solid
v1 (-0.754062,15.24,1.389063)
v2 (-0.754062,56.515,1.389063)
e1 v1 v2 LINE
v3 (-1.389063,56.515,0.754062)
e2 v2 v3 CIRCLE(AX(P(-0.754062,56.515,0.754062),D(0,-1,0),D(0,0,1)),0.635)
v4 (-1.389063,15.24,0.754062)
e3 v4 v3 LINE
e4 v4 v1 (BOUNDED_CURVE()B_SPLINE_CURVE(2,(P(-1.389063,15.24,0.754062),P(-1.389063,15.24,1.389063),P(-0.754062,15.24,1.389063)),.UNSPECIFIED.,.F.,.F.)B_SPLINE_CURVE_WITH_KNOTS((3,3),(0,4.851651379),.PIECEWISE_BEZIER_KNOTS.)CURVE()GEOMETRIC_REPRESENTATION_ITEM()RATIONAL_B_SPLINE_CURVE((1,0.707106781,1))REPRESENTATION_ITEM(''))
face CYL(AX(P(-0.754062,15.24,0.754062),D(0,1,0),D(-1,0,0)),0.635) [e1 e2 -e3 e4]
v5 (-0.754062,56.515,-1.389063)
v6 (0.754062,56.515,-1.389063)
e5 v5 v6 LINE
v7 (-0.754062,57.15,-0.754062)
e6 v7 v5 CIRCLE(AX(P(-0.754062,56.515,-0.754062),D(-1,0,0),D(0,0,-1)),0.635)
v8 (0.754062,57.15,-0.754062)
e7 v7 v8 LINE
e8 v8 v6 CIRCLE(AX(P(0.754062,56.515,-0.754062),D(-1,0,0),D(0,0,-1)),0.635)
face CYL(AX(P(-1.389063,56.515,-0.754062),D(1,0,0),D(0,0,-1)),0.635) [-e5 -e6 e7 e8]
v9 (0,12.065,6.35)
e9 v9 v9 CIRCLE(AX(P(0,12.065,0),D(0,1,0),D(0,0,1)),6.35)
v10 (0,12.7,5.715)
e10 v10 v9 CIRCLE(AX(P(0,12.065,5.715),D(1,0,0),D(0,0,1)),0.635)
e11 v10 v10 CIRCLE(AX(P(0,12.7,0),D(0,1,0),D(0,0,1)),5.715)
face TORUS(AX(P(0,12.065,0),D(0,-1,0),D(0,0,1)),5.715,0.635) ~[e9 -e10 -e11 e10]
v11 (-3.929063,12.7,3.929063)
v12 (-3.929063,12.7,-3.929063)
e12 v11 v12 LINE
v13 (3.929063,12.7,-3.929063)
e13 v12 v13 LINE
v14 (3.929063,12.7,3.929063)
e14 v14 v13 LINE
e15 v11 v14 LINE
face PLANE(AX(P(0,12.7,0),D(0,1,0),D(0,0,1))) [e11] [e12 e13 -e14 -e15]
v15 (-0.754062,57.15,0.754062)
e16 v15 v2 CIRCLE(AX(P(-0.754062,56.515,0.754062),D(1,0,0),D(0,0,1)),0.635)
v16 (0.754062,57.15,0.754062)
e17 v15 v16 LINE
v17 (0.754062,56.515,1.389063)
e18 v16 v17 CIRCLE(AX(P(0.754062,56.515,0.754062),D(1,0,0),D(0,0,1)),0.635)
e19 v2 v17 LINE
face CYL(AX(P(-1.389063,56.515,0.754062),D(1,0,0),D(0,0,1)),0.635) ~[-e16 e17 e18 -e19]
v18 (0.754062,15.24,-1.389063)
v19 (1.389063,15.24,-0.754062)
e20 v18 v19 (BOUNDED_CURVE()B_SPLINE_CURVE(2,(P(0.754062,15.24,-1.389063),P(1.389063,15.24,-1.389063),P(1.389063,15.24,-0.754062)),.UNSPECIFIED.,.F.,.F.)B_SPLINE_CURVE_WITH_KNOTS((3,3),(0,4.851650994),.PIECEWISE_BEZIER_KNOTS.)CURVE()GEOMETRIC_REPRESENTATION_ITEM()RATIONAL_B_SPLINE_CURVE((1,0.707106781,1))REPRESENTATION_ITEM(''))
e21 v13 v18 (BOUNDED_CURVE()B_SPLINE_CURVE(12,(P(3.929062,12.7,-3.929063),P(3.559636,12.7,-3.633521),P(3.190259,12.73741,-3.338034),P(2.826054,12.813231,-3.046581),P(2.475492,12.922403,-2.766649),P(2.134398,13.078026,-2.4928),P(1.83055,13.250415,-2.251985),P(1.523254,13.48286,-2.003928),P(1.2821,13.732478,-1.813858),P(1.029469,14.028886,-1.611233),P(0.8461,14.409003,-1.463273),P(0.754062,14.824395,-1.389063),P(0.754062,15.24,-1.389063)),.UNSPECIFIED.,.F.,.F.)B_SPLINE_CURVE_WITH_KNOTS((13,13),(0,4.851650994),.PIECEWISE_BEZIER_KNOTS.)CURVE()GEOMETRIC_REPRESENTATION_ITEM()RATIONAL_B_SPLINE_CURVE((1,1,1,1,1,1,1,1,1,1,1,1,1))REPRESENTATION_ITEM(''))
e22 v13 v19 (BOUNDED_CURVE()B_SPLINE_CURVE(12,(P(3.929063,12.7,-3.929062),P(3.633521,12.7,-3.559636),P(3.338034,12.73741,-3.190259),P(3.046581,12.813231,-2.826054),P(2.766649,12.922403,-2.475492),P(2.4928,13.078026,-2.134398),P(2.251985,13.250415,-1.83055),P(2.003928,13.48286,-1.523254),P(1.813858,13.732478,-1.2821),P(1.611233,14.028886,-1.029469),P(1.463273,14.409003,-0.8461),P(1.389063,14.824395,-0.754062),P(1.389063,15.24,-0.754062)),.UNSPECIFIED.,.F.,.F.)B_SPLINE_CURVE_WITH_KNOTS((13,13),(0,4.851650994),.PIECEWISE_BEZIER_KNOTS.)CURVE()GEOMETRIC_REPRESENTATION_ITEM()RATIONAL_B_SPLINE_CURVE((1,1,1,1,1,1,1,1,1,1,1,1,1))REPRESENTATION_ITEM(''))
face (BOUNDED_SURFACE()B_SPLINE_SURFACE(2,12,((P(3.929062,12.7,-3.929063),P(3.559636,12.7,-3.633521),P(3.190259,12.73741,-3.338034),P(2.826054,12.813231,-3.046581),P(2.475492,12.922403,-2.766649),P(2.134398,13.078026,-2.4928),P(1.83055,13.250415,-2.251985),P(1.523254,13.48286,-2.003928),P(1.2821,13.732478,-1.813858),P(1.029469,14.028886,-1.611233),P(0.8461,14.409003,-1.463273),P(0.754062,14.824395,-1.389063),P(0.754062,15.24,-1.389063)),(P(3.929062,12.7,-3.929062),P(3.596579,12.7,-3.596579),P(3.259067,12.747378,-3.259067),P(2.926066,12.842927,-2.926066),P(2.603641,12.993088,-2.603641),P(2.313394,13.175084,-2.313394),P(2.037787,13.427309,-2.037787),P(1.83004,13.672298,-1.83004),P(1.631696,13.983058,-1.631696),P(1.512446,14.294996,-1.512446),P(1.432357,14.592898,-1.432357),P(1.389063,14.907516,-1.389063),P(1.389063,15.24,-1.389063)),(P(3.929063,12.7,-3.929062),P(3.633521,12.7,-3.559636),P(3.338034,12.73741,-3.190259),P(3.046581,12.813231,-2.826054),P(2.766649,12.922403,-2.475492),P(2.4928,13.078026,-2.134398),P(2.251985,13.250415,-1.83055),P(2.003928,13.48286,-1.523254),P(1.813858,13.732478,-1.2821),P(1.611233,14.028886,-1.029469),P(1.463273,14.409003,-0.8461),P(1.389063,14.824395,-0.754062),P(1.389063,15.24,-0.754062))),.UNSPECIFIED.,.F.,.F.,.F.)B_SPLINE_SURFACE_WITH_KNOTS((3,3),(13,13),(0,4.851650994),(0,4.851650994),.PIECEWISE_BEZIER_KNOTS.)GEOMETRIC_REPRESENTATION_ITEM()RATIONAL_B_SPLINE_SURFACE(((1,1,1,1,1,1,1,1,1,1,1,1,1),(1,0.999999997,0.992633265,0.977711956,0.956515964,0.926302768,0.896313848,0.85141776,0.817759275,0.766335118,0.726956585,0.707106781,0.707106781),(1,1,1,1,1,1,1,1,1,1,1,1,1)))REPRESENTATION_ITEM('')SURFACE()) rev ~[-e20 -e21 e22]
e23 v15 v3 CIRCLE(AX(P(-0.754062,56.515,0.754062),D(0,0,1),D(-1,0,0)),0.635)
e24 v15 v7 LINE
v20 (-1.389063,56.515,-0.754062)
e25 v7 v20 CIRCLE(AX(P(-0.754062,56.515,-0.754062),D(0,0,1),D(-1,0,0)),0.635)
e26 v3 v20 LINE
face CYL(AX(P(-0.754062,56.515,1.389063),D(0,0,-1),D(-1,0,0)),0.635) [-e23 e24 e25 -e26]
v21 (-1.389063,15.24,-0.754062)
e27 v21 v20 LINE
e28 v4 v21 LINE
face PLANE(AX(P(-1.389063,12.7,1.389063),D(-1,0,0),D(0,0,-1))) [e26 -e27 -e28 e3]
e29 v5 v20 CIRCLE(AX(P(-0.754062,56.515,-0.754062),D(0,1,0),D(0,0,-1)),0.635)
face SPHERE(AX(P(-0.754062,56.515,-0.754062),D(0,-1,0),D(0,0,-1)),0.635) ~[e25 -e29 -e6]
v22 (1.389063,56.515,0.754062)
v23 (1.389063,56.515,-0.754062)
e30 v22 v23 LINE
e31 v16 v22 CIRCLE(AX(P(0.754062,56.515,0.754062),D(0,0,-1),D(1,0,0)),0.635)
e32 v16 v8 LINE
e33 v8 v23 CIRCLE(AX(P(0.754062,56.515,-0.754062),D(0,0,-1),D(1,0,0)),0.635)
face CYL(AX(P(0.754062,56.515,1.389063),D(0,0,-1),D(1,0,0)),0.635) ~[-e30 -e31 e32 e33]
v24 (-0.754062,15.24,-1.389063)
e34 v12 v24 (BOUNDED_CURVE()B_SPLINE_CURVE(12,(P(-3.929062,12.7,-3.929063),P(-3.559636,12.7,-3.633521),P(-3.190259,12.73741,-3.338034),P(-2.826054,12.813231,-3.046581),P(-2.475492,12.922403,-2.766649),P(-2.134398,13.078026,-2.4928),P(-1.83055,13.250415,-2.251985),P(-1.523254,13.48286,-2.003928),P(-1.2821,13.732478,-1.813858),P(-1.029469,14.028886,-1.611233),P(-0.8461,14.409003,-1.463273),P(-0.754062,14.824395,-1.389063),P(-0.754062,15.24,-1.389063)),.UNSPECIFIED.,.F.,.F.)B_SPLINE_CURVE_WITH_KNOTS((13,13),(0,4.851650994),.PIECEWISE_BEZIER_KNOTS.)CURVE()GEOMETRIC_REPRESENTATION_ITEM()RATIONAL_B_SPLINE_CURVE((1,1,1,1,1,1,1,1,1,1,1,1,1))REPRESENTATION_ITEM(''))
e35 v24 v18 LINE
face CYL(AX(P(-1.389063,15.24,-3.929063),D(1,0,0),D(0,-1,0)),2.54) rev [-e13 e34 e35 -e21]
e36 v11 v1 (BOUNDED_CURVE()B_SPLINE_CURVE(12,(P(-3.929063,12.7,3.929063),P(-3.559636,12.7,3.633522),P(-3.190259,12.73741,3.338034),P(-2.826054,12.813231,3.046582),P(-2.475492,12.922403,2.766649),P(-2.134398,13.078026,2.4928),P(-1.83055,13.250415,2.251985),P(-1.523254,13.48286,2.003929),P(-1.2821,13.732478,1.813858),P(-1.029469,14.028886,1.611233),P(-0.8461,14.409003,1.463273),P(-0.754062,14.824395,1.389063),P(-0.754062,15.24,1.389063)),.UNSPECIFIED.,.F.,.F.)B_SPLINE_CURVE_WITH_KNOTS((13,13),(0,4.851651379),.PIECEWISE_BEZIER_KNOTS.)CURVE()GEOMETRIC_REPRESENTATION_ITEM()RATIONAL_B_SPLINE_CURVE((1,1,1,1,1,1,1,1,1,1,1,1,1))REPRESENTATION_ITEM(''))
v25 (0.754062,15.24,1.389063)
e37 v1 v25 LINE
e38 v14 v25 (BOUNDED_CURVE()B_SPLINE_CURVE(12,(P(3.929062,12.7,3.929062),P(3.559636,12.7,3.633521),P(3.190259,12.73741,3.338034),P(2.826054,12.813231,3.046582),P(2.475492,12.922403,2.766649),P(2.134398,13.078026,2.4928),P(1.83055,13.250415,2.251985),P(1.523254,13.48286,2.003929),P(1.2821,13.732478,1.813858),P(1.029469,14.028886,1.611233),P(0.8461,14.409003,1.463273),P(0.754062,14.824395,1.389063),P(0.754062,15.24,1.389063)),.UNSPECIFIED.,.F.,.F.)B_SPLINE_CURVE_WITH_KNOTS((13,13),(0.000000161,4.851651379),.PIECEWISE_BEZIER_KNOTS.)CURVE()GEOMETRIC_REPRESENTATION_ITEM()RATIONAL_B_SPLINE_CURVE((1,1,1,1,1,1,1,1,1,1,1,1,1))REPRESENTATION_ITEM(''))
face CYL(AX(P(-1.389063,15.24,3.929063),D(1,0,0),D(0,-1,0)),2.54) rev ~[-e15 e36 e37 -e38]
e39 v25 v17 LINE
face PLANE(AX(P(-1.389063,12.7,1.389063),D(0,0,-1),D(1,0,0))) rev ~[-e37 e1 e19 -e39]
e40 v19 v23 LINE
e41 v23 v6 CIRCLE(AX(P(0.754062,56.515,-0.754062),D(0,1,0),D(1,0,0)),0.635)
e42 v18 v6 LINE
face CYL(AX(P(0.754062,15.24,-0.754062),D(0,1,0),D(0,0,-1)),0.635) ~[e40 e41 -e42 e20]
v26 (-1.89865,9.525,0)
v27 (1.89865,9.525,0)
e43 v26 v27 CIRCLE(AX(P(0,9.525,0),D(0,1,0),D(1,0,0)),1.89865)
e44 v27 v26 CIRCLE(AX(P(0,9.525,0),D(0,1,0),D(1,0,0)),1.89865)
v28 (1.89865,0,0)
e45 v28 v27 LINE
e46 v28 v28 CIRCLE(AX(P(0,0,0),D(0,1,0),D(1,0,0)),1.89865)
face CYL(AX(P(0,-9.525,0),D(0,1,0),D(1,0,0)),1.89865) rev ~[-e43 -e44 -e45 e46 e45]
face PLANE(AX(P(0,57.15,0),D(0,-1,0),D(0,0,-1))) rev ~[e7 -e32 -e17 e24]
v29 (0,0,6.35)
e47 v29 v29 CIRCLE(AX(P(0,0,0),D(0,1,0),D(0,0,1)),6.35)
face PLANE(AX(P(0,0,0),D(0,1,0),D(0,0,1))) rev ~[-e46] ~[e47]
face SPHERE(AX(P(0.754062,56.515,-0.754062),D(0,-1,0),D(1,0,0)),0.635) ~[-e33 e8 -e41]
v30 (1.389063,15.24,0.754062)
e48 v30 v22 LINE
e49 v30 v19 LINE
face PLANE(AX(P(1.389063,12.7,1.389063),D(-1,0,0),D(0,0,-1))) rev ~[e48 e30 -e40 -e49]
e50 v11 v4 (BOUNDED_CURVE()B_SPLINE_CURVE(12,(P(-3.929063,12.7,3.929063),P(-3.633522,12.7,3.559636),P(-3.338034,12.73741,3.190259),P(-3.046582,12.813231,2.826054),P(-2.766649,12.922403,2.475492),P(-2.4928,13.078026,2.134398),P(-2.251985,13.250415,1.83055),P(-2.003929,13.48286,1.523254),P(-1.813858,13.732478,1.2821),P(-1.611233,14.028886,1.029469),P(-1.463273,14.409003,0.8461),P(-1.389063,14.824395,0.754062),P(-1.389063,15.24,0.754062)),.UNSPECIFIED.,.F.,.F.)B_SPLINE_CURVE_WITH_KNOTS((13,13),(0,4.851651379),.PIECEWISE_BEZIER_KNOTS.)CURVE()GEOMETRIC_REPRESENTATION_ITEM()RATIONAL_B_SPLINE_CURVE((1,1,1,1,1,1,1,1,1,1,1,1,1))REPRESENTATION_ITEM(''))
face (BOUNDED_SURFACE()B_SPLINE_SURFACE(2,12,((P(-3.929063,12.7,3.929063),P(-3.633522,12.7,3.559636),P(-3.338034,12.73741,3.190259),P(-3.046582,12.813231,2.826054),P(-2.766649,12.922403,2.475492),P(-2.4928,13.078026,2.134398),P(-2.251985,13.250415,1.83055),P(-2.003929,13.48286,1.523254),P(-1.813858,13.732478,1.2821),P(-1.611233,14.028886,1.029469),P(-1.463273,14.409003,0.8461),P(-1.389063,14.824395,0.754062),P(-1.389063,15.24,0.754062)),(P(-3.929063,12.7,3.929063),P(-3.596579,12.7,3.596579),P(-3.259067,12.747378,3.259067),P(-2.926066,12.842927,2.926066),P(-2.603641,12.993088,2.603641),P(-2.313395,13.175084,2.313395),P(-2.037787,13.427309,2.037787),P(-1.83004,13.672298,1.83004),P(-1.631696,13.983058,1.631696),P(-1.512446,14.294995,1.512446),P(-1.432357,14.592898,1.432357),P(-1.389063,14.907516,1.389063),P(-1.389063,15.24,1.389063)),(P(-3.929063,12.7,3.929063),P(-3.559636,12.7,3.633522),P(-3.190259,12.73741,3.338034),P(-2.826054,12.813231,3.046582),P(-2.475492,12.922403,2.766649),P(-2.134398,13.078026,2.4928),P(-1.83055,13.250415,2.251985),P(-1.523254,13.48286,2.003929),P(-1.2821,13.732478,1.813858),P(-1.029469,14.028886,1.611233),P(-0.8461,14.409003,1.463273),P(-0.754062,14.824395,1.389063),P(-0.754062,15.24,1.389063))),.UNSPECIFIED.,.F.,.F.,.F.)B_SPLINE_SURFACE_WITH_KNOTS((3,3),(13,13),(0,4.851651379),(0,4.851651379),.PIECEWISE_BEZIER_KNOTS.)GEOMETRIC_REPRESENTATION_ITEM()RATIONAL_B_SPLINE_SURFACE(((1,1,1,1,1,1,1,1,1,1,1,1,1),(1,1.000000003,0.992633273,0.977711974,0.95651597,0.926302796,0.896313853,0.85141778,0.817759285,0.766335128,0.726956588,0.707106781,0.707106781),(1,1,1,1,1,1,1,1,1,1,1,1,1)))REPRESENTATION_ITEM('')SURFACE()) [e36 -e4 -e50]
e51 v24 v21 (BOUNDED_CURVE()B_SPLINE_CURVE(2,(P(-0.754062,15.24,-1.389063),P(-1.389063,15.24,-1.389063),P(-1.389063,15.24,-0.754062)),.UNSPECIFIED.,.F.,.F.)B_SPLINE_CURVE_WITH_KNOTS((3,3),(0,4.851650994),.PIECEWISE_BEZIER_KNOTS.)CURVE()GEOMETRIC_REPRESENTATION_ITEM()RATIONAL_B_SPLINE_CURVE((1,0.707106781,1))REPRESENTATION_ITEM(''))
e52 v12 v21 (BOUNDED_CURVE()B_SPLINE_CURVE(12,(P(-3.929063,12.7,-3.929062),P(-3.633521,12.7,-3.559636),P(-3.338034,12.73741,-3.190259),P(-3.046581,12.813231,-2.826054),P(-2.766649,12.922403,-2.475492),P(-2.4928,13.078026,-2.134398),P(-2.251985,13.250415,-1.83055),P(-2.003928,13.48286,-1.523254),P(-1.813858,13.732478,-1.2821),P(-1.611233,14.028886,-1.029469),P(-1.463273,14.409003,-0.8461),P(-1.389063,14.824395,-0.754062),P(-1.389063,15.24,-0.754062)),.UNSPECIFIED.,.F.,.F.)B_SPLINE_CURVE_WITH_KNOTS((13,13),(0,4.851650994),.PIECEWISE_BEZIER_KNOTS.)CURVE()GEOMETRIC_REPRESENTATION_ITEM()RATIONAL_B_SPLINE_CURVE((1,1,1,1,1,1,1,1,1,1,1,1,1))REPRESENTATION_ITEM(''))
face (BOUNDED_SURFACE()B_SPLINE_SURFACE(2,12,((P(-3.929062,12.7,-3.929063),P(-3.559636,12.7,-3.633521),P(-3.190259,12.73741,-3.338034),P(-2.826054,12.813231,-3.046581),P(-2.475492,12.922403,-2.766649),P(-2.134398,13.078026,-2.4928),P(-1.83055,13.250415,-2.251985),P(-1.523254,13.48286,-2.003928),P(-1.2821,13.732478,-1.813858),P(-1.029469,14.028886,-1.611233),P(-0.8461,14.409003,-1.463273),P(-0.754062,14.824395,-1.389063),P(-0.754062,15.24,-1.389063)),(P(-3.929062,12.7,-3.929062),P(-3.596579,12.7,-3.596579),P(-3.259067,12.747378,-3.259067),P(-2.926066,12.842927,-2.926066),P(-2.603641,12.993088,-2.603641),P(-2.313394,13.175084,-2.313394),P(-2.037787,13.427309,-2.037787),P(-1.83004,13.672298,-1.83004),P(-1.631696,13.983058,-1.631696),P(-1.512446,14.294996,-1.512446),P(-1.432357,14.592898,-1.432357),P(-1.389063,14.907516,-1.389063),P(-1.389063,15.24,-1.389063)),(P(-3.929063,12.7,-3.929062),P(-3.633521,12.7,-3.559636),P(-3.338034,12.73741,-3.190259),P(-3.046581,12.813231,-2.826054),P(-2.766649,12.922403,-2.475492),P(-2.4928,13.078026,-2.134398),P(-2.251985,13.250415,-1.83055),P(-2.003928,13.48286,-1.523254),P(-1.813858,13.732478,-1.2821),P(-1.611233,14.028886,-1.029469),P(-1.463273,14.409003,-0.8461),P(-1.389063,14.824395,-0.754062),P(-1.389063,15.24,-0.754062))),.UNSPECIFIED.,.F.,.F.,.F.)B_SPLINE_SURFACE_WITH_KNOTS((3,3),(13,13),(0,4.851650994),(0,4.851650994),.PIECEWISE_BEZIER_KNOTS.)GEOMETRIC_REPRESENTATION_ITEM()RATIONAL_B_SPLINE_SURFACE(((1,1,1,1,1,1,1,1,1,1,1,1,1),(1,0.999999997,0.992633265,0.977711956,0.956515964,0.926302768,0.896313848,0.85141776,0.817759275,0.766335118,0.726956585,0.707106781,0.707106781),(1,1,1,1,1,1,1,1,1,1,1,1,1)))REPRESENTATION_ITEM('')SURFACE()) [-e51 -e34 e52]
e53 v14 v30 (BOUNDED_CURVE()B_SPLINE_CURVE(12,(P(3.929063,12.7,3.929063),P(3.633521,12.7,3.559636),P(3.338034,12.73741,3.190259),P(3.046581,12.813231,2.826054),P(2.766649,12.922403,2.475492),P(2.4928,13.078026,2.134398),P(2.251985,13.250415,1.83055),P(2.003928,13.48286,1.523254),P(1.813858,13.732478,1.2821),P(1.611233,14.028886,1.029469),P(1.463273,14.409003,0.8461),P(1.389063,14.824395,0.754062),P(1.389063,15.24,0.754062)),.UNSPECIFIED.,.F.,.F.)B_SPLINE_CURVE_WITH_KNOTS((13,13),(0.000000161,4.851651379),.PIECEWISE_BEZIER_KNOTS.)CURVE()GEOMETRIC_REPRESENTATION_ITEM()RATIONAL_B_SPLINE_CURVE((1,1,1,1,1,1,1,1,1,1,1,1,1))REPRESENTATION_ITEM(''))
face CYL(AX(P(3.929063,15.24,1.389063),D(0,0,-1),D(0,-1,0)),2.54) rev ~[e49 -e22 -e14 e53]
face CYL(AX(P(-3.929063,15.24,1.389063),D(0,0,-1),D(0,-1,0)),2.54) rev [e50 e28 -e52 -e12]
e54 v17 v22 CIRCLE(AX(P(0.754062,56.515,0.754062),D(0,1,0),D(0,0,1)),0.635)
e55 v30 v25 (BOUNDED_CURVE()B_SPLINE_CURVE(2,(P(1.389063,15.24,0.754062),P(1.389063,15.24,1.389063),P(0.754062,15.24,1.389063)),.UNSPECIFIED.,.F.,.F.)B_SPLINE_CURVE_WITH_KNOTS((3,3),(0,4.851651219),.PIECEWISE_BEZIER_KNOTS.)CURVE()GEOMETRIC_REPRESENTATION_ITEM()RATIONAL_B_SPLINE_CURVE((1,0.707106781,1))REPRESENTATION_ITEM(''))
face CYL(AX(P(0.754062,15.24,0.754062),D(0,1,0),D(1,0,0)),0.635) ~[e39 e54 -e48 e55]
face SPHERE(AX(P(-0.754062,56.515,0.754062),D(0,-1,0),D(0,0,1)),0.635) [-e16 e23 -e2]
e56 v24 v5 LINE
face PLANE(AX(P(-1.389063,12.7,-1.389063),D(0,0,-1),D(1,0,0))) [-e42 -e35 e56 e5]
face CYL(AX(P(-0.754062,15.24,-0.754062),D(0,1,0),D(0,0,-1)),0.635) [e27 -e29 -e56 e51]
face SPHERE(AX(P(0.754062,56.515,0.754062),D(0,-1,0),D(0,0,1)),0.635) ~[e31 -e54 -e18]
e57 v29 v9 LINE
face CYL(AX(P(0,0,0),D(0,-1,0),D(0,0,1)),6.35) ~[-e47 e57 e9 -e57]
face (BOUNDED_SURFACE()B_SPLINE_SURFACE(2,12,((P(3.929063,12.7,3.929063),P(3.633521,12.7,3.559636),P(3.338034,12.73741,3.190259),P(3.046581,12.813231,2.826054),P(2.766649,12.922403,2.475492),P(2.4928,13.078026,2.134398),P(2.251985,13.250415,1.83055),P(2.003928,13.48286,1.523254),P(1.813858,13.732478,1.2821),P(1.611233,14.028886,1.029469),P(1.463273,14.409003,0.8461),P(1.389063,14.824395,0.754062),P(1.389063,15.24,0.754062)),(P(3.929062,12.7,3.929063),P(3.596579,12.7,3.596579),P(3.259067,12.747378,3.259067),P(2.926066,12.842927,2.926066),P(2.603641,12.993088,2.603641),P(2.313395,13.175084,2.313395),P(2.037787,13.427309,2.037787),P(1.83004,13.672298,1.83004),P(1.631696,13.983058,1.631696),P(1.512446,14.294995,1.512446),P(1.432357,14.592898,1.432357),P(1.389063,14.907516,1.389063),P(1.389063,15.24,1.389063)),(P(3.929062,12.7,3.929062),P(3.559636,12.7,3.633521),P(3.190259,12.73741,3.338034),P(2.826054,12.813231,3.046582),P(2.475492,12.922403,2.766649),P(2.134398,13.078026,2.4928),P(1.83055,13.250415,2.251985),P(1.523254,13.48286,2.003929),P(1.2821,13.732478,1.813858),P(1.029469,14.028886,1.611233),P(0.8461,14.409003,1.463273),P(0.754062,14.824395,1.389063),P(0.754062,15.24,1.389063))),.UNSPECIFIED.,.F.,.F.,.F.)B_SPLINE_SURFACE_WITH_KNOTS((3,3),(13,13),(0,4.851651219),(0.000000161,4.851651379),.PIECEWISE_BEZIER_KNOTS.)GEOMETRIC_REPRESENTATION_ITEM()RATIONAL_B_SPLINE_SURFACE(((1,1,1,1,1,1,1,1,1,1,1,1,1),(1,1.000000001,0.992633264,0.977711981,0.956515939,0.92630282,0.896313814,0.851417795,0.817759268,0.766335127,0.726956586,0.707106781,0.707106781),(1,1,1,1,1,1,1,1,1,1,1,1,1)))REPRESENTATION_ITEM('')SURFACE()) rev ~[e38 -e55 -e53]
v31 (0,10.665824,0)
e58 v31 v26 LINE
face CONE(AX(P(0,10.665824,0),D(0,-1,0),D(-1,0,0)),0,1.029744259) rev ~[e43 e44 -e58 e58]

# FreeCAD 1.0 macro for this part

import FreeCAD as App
import Part
import Sketcher
Q = App.Units.Quantity


def edges_at(feature, points):
    """Names of the edges that pass closest to the given points."""
    edges = feature.Shape.Edges
    near = lambda p: min(range(len(edges)), key=lambda i: edges[i].distToShape(Part.Vertex(*p))[0])
    return sorted({f"Edge{near(p) + 1}" for p in points})

doc = App.newDocument("Part")
body = doc.addObject("PartDesign::Body", "Body")

sketch1 = doc.addObject("Sketcher::SketchObject", "Sketch")
body.addObject(sketch1)
sketch1.AttachmentSupport = (doc.XZ_Plane, [""])
sketch1.MapMode = "FlatFace"
sketch1.addGeometry(Part.Circle(App.Vector(0, 0, 0), App.Vector(0, 0, 1), 6), False)
sketch1.addConstraint([
    Sketcher.Constraint("Coincident", 0, 3, -1, 1),
    Sketcher.Constraint("Diameter", 0, Q("0.5 in")),
])
pad1 = doc.addObject("PartDesign::Pad", "Pad")
body.addObject(pad1)
pad1.Profile = sketch1
pad1.Length = Q("0.5 in")
pad1.Reversed = True

sketch2 = doc.addObject("Sketcher::SketchObject", "Sketch001")
body.addObject(sketch2)
sketch2.AttachmentSupport = (doc.XZ_Plane, [""])
sketch2.MapMode = "FlatFace"
sketch2.AttachmentOffset = App.Placement(App.Vector(0, 0, -0.5 * 25.4), App.Rotation())
sketch2.addGeometry([
    Part.LineSegment(App.Vector(1.4, 1.4, 0), App.Vector(-1.4, 1.4, 0)),
    Part.LineSegment(App.Vector(-1.4, 1.4, 0), App.Vector(-1.4, -1.4, 0)),
    Part.LineSegment(App.Vector(-1.4, -1.4, 0), App.Vector(1.4, -1.4, 0)),
    Part.LineSegment(App.Vector(1.4, -1.4, 0), App.Vector(1.4, 1.4, 0)),
], False)
sketch2.addConstraint([
    Sketcher.Constraint("Coincident", 0, 2, 1, 1),
    Sketcher.Constraint("Coincident", 1, 2, 2, 1),
    Sketcher.Constraint("Coincident", 2, 2, 3, 1),
    Sketcher.Constraint("Coincident", 3, 2, 0, 1),
    Sketcher.Constraint("Horizontal", 0),
    Sketcher.Constraint("Vertical", 1),
    Sketcher.Constraint("Horizontal", 2),
    Sketcher.Constraint("Vertical", 3),
    Sketcher.Constraint("Symmetric", 0, 2, 2, 2, -1, 1),
    Sketcher.Constraint("Equal", 2, 1),
    Sketcher.Constraint("DistanceX", 0, 2, 0, 1, Q("0.109375 in")),
])
pad2 = doc.addObject("PartDesign::Pad", "Pad001")
body.addObject(pad2)
pad2.Profile = sketch2
pad2.Length = Q("1.75 in")
pad2.Reversed = True
doc.recompute()

fillet = doc.addObject("PartDesign::Fillet", "Fillet")
body.addObject(fillet)
fillet.Base = (pad2, edges_at(pad2, [
    (0, 12.7, -1.389),
    (-1.389, 12.7, 0),
    (1.389, 12.7, 0),
    (0, 12.7, 1.389),
]))
fillet.Radius = Q("0.1 in")
doc.recompute()

fillet2 = doc.addObject("PartDesign::Fillet", "Fillet001")
body.addObject(fillet2)
fillet2.Base = (fillet, edges_at(fillet, [
    (2.288, 13.301, -2.288),
    (-2.288, 13.301, -2.288),
    (2.288, 13.301, 2.288),
    (-2.288, 13.301, 2.288),
    (0, 12.7, -6.35),
    (1.389, 36.195, -1.389),
    (-1.389, 36.195, -1.389),
    (0, 57.15, 1.389),
    (-1.389, 36.195, 1.389),
    (1.389, 57.15, 0),
    (1.389, 36.195, 1.389),
    (0, 57.15, -1.389),
    (-1.389, 57.15, 0),
]))
fillet2.Radius = Q("0.025 in")

sketch3 = doc.addObject("Sketcher::SketchObject", "Sketch002")
body.addObject(sketch3)
sketch3.AttachmentSupport = (doc.XZ_Plane, [""])
sketch3.MapMode = "FlatFace"
sketch3.addGeometry(Part.Circle(App.Vector(0, 0, 0), App.Vector(0, 0, 1), 1.9), False)
sketch3.addConstraint([
    Sketcher.Constraint("Coincident", 0, 3, -1, 1),
    Sketcher.Constraint("Diameter", 0, Q("0.1495 in")),
])
doc.recompute()
hole = doc.addObject("PartDesign::Hole", "Hole")
body.addObject(hole)
hole.Profile = sketch3
hole.ThreadType = "None"
hole.Diameter = Q("0.1495 in")
hole.DepthType = "Dimension"
hole.Depth = Q("0.375 in")
hole.DrillPoint = "Angled"
hole.DrillPointAngle = 118

doc.recompute()
